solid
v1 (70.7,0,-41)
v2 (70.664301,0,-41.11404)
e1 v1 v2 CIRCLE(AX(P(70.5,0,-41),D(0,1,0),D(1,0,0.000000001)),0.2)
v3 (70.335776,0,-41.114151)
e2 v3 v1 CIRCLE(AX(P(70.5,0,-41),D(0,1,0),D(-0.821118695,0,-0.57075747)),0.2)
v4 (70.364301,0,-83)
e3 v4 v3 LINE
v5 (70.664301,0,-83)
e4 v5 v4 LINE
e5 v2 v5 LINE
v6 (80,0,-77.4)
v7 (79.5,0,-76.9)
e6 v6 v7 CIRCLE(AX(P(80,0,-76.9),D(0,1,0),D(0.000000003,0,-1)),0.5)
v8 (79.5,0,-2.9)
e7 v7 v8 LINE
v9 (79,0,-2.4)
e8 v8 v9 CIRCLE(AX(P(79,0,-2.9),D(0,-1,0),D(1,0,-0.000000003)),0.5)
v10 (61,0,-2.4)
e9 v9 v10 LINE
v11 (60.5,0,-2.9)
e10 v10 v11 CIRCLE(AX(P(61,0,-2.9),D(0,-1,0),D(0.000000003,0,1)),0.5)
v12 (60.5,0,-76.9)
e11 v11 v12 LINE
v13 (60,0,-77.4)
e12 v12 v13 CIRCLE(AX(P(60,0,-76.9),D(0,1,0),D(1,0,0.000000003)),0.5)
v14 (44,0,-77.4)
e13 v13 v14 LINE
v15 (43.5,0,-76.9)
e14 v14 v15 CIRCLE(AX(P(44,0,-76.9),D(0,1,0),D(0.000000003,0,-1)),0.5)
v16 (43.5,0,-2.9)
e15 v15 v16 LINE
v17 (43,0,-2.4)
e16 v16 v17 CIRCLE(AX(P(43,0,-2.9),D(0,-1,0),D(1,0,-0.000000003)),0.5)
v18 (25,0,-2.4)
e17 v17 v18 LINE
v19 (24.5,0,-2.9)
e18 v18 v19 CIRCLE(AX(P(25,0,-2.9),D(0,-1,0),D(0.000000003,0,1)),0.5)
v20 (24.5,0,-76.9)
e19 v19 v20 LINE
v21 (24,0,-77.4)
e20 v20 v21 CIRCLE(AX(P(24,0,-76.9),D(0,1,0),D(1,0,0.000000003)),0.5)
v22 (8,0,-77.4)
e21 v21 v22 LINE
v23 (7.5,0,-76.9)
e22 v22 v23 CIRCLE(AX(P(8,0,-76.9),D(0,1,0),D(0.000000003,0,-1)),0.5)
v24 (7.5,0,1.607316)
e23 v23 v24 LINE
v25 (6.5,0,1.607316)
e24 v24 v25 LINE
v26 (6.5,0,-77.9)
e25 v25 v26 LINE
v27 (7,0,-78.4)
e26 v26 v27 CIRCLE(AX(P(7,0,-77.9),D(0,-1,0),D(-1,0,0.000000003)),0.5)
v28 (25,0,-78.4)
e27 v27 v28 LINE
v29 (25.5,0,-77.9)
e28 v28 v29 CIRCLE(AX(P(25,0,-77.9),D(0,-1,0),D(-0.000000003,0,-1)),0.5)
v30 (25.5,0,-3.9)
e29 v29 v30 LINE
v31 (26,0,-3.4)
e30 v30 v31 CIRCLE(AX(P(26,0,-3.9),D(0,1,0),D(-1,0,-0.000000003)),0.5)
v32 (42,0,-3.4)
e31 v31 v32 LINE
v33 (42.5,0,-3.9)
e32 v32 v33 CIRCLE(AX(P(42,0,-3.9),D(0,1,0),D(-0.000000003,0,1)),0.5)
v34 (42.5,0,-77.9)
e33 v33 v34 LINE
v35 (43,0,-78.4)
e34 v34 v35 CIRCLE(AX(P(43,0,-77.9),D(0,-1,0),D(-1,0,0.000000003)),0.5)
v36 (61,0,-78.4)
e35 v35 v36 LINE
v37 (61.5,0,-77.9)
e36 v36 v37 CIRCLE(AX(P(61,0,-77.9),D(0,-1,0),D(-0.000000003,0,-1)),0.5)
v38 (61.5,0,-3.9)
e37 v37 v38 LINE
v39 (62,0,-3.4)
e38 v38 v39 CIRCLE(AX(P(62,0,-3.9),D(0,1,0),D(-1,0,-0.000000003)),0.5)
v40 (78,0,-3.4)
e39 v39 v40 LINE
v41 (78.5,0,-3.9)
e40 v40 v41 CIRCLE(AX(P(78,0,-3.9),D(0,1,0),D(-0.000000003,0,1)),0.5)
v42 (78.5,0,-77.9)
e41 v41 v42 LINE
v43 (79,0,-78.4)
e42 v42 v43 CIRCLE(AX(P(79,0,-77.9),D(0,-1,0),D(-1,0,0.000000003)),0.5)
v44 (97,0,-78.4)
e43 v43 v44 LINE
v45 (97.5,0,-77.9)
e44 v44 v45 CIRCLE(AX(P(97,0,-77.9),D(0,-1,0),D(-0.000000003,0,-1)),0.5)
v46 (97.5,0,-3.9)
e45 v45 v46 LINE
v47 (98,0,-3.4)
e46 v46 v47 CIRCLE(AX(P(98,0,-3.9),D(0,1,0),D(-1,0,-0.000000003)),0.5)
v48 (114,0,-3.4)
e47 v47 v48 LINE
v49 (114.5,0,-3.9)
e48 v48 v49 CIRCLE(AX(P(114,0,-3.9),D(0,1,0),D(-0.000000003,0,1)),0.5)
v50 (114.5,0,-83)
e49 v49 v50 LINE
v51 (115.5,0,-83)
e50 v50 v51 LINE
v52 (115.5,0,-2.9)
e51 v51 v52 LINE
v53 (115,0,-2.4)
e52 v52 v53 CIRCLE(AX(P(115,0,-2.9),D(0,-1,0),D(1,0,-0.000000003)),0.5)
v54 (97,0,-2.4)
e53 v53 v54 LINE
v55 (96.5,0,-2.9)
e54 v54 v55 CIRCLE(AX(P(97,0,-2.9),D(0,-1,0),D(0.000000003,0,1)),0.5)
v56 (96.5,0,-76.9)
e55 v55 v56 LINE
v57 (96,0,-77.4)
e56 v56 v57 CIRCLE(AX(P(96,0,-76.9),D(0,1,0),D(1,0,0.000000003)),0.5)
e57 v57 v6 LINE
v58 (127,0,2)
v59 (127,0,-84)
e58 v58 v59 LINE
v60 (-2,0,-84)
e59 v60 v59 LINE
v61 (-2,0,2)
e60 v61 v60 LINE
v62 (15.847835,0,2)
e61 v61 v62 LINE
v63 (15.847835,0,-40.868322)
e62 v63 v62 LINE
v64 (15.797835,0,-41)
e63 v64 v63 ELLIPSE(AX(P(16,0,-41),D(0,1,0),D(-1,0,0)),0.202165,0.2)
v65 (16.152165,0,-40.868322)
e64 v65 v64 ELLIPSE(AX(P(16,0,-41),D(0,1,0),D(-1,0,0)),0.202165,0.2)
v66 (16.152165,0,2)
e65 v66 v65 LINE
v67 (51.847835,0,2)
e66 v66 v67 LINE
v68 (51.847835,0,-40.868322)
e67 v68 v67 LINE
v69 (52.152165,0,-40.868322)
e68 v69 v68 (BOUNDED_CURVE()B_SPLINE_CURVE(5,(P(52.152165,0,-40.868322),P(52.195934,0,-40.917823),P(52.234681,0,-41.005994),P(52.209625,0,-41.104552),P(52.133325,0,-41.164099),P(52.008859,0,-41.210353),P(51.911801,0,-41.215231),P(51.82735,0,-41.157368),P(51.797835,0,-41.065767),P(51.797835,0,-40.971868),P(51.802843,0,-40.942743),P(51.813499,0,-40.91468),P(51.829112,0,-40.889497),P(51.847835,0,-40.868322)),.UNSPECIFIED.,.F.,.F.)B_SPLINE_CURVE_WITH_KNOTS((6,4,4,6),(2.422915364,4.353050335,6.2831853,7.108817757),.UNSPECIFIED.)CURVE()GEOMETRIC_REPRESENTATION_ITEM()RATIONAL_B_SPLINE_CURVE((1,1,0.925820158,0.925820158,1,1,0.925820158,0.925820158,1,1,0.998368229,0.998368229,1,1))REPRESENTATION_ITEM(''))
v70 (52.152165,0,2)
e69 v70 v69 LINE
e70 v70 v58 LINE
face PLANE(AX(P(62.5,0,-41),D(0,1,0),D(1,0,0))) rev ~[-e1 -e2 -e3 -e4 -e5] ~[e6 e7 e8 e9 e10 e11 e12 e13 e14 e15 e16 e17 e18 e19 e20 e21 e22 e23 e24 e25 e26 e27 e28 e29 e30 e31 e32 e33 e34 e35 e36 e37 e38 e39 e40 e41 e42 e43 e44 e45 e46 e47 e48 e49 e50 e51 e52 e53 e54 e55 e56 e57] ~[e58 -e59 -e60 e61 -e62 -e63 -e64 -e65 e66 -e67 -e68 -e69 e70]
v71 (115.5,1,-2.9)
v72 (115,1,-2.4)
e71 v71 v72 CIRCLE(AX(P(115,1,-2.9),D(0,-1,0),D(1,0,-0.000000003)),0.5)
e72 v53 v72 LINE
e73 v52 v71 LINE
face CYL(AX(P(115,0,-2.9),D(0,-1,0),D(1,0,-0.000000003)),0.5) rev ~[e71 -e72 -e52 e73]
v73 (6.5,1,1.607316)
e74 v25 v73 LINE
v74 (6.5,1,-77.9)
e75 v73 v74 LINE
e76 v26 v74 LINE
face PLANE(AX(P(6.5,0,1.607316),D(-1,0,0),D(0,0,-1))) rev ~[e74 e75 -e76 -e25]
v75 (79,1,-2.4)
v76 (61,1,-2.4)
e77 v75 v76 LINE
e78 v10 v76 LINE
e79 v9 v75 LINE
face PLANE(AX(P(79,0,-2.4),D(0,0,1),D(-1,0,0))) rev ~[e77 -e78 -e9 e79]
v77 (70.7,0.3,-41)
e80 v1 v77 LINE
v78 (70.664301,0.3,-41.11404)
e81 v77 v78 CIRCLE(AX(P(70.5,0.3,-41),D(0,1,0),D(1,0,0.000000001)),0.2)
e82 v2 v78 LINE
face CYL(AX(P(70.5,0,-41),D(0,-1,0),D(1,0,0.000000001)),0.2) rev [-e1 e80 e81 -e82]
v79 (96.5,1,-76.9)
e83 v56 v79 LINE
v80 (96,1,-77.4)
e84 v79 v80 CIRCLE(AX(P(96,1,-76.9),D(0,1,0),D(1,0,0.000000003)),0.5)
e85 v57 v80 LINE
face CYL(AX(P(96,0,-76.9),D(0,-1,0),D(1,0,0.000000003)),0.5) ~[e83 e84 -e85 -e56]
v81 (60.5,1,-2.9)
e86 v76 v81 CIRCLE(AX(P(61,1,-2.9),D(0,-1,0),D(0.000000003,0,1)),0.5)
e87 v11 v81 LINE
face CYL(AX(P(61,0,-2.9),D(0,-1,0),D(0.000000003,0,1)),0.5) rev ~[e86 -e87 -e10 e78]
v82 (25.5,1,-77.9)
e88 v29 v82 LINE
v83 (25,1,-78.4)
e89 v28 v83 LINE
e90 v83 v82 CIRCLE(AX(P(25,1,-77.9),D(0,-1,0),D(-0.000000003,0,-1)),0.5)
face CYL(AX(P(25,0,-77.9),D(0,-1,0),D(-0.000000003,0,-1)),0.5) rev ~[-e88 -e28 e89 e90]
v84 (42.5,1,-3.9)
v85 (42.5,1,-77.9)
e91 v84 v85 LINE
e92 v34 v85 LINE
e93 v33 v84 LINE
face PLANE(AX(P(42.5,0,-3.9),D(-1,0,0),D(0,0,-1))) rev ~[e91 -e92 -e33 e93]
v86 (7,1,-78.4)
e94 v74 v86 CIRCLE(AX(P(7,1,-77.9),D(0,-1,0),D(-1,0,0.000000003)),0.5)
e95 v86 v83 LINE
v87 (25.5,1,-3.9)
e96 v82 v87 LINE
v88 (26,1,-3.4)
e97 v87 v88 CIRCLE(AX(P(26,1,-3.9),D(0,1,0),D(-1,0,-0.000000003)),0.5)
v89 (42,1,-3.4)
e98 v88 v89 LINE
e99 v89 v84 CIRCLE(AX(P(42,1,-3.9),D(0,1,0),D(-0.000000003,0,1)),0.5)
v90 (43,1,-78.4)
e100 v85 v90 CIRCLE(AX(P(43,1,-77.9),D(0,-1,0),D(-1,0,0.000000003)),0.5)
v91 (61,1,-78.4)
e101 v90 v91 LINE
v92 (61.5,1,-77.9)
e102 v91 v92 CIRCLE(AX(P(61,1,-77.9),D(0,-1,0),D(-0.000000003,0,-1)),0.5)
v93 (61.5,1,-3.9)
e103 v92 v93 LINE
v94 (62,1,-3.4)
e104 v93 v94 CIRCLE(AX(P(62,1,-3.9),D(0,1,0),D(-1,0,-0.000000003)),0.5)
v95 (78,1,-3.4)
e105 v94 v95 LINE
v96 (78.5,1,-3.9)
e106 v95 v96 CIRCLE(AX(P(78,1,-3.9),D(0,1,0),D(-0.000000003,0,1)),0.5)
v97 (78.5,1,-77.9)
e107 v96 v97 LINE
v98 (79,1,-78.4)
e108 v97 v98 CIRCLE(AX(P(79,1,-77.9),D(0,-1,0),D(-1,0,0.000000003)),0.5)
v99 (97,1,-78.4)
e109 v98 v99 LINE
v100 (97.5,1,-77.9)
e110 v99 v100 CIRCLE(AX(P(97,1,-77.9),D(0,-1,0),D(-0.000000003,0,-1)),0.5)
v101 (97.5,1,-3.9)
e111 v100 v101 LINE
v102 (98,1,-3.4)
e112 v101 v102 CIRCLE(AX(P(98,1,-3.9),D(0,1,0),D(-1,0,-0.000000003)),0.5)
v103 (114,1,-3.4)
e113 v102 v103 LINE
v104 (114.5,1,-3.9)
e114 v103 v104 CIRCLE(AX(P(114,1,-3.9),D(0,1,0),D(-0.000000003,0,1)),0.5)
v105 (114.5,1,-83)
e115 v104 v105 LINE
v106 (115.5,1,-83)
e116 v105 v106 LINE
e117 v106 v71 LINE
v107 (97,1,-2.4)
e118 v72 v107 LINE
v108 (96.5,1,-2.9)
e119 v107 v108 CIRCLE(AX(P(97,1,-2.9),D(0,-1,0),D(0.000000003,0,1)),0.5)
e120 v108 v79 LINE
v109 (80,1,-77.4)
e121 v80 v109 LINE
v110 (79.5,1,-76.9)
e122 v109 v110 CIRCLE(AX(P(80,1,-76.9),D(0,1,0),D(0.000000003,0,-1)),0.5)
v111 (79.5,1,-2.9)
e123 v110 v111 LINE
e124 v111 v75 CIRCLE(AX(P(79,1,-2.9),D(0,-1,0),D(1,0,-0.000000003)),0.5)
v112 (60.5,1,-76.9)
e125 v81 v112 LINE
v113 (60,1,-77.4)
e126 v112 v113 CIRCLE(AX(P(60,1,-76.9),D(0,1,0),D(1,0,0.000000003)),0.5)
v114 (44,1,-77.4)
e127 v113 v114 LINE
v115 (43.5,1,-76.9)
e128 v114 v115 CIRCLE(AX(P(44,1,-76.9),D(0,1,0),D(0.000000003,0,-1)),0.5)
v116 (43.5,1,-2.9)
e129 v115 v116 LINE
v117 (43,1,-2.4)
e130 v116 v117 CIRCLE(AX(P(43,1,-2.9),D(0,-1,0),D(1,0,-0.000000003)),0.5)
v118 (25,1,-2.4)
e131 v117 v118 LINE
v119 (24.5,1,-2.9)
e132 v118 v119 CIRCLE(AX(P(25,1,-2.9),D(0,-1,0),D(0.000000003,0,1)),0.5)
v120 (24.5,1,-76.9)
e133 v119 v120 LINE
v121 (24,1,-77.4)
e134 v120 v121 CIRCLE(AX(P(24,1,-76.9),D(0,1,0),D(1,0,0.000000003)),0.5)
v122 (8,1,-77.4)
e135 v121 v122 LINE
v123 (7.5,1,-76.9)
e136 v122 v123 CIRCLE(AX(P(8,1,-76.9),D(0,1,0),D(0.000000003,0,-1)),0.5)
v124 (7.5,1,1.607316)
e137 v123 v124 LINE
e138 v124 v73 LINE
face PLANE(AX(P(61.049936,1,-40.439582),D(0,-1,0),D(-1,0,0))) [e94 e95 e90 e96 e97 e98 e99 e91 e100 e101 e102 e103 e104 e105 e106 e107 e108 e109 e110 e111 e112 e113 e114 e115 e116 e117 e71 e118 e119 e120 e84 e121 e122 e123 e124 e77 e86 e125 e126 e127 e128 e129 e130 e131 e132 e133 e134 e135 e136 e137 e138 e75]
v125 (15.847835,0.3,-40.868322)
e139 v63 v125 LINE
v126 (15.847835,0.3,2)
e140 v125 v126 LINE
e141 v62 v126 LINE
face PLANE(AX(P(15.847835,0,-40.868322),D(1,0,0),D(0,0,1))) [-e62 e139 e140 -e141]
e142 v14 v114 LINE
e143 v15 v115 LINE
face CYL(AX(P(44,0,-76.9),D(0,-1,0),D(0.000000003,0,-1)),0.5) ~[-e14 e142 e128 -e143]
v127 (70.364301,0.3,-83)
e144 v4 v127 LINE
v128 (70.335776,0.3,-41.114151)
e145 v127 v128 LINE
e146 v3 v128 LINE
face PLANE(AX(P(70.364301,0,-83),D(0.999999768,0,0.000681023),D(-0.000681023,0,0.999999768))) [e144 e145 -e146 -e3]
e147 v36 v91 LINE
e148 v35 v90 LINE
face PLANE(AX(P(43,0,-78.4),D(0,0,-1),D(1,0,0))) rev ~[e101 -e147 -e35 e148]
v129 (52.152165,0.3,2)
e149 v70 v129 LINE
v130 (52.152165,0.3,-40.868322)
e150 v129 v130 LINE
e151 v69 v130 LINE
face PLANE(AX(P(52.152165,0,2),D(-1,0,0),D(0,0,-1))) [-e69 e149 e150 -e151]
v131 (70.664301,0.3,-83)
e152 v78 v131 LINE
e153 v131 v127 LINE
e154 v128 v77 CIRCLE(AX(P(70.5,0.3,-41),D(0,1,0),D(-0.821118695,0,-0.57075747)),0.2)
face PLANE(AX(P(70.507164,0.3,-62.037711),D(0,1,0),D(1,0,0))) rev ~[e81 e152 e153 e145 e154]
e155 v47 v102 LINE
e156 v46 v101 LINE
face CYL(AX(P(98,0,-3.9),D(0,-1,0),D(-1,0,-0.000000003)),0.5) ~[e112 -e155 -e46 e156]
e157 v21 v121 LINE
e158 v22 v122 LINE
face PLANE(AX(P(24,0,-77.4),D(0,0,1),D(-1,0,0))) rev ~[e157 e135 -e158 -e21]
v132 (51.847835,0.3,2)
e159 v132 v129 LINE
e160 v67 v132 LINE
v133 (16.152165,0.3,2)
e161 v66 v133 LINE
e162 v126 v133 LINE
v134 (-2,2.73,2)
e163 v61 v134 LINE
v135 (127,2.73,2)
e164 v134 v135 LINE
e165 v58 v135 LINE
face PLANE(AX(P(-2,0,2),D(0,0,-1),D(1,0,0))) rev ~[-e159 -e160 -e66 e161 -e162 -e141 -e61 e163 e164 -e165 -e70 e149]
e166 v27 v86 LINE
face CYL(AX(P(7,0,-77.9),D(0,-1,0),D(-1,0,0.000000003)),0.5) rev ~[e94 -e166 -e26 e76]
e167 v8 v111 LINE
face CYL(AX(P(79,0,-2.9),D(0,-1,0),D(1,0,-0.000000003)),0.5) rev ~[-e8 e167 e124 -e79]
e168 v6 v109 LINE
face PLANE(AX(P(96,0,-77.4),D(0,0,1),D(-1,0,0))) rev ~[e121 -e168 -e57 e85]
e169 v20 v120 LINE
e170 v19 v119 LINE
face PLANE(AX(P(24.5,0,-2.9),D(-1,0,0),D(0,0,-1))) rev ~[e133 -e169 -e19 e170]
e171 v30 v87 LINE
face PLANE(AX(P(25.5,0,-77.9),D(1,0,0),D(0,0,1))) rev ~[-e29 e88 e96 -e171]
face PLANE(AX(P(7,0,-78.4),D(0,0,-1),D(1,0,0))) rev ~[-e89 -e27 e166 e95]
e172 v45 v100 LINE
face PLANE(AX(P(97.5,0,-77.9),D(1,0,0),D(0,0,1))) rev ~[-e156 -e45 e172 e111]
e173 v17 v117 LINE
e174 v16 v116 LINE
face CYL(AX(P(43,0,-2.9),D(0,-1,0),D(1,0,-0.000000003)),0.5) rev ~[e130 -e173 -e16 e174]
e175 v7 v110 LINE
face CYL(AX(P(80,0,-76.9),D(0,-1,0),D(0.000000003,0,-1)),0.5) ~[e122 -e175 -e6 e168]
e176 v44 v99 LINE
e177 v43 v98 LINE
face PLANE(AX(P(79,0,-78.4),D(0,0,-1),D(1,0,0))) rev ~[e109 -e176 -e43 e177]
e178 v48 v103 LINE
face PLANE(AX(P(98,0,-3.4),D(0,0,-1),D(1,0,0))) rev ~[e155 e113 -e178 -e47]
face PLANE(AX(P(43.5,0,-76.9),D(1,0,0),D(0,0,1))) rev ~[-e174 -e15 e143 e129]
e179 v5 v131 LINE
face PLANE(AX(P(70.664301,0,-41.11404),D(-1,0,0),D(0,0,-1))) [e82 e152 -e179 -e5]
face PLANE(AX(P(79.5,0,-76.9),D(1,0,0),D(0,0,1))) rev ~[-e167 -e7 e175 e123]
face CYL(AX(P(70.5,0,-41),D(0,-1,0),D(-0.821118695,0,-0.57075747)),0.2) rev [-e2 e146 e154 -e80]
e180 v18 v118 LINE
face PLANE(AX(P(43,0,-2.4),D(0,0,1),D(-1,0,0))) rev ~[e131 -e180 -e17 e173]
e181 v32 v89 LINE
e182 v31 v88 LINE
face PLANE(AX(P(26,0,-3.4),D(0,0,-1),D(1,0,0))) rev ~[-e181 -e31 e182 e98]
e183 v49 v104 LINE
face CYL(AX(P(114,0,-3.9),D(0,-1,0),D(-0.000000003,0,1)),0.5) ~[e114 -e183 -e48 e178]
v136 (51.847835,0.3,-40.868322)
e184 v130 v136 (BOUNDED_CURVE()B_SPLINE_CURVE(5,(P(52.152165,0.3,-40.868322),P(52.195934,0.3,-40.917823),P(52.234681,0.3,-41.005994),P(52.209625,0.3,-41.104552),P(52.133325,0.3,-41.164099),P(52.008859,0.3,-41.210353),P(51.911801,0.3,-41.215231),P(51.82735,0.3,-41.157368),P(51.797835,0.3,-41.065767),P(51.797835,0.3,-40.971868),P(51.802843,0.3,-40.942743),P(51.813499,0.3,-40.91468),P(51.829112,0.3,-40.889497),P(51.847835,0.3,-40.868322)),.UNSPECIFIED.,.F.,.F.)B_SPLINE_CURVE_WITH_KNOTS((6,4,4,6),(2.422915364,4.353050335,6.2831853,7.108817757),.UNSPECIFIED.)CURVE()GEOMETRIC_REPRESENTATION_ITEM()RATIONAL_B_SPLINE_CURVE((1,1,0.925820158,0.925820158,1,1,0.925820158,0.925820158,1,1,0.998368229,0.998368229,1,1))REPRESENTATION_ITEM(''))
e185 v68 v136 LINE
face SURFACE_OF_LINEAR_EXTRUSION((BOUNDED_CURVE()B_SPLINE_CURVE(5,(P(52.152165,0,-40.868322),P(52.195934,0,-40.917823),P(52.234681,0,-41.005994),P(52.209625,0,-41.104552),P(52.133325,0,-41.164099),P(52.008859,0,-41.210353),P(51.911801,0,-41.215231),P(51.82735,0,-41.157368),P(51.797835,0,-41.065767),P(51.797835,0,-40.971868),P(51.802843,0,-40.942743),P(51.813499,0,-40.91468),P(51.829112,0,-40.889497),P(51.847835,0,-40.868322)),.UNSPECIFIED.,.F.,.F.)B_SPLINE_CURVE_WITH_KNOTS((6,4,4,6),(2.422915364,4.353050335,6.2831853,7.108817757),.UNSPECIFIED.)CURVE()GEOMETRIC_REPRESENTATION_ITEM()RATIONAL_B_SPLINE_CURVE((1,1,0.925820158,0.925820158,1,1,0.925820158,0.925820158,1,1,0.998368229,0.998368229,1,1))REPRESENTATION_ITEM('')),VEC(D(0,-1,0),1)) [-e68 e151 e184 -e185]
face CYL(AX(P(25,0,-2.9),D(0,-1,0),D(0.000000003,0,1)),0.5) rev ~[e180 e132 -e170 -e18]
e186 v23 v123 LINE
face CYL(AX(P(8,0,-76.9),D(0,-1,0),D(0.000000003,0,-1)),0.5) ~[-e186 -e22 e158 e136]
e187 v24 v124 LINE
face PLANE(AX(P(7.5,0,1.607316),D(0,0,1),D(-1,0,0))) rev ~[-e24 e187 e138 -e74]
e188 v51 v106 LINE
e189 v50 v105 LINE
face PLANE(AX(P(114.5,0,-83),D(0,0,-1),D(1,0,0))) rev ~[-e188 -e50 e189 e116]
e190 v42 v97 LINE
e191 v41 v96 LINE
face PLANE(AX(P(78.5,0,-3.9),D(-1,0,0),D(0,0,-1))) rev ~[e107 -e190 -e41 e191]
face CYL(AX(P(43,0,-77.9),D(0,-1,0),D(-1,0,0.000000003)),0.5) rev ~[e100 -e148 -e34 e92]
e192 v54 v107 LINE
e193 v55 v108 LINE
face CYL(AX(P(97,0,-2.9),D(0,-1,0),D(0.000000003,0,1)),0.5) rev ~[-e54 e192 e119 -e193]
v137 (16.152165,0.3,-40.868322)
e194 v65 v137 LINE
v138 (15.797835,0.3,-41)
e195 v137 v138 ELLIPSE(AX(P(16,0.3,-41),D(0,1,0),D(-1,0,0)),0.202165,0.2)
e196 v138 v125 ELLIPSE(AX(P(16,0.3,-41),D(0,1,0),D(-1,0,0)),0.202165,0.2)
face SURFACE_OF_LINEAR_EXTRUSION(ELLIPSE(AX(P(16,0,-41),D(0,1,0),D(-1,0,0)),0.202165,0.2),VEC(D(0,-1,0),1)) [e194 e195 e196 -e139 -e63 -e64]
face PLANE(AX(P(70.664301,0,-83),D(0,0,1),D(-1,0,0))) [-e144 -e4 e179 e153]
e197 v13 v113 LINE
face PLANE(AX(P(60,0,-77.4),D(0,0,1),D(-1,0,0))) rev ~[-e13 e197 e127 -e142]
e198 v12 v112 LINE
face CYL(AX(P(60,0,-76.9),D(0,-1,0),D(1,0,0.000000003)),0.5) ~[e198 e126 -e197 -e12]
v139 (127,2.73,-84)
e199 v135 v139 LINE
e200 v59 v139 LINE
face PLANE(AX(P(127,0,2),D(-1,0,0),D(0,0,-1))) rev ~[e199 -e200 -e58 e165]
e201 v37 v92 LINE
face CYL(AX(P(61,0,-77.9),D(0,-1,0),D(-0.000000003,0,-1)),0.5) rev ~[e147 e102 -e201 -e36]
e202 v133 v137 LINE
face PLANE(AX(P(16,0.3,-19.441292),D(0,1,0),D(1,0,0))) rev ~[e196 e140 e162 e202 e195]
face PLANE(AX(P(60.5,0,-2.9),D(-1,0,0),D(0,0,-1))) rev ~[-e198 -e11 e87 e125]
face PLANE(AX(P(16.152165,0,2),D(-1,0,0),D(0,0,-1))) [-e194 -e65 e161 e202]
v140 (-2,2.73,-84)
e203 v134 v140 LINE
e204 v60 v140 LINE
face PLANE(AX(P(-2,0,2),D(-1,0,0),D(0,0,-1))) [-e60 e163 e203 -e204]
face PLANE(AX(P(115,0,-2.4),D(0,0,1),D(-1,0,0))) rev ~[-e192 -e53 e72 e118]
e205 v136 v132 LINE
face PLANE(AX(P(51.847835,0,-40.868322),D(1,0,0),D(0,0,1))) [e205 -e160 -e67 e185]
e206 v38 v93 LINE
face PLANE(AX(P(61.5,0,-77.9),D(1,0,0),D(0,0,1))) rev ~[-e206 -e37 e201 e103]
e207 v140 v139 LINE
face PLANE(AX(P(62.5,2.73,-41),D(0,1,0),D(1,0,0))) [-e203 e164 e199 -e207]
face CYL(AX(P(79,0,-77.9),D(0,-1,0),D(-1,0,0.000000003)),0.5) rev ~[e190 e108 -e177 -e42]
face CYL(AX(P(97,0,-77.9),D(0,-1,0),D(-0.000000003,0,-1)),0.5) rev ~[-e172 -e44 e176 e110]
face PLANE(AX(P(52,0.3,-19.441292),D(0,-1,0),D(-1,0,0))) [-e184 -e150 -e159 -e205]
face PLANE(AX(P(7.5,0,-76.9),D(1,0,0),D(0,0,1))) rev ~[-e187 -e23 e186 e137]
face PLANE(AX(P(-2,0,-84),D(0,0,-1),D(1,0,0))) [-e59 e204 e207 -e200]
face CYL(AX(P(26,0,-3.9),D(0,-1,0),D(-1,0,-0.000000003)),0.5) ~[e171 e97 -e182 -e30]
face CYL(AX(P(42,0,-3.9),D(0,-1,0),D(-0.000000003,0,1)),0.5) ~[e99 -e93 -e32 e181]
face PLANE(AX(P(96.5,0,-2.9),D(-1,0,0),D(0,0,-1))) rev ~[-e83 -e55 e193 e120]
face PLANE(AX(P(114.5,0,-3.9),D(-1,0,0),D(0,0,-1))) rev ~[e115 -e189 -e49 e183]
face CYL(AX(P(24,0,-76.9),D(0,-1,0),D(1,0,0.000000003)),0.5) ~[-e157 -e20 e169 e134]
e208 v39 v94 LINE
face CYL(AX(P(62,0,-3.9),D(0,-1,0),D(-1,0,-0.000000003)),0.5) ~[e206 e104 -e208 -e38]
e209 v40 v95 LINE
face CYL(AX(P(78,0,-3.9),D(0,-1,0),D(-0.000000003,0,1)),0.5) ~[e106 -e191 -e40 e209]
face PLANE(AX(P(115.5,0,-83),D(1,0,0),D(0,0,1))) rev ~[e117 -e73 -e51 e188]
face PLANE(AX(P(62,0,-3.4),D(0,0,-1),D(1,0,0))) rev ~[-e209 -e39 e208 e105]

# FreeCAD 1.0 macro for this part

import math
import FreeCAD as App
import Part
import Sketcher

V = App.Vector
Q = App.Units.Quantity


def add_polygon(sketch, points):
    """Adds a closed chain of lines whose ends are joined by coincident constraints."""
    first, n = sketch.GeometryCount, len(points)
    for a, b in zip(points, points[1:] + points[:1]):
        sketch.addGeometry(Part.LineSegment(App.Vector(*a, 0), App.Vector(*b, 0)), False)
    for i in range(n):
        sketch.addConstraint(Sketcher.Constraint("Coincident", first + i, 2, first + (i + 1) % n, 1))

doc = App.newDocument("Part")
body = doc.addObject("PartDesign::Body", "Body")

# Sketch on XZ plane
sketch1 = body.newObject("Sketcher::SketchObject", "Sketch")
sketch1.AttachmentSupport = (doc.getObject("XZ_Plane"), [""])
sketch1.MapMode = "FlatFace"
add_polygon(sketch1, [(-2, -84), (-2, 2), (127, 2), (127, -84)])  # lines 0-3
sketch1.addConstraint([
    Sketcher.Constraint("Vertical", 0),
    Sketcher.Constraint("Horizontal", 1),
    Sketcher.Constraint("Vertical", 2),
    Sketcher.Constraint("Horizontal", 3),
    Sketcher.Constraint("DistanceX", 1, 1, 1, 2, Q("129 mm")),
    Sketcher.Constraint("DistanceY", 0, 1, 0, 2, Q("86 mm")),
    Sketcher.Constraint("DistanceX", 0, 2, -1, 1, Q("2 mm")),
    Sketcher.Constraint("DistanceY", -1, 1, 0, 2, Q("2 mm")),
])
pad1 = body.newObject("PartDesign::Pad", "Pad")
pad1.Profile = sketch1
pad1.Length = 2.73
pad1.Reversed = True

# Sketch on XZ plane
sketch2 = body.newObject("Sketcher::SketchObject", "Sketch001")
sketch2.AttachmentSupport = (doc.getObject("XZ_Plane"), [""])
sketch2.MapMode = "FlatFace"
sketch2.addGeometry([
    Part.LineSegment(V(6.5, -77.9, 0), V(6.5, 1.61, 0)),  # 0
    Part.LineSegment(V(6.5, 1.61, 0), V(7.5, 1.61, 0)),  # 1
    Part.LineSegment(V(7.5, 1.61, 0), V(7.5, -76.9, 0)),  # 2
    Part.ArcOfCircle(Part.Circle(V(8, -76.9, 0), V(0, 0, 1), 0.5), math.radians(180), math.radians(270)),  # 3
    Part.LineSegment(V(8, -77.4, 0), V(24, -77.4, 0)),  # 4
    Part.ArcOfCircle(Part.Circle(V(24, -76.9, 0), V(0, 0, 1), 0.5), math.radians(-90), math.radians(0)),  # 5
    Part.LineSegment(V(24.5, -76.9, 0), V(24.5, -2.9, 0)),  # 6
    Part.ArcOfCircle(Part.Circle(V(25, -2.9, 0), V(0, 0, 1), 0.5), math.radians(90), math.radians(180)),  # 7
    Part.LineSegment(V(25, -2.4, 0), V(43, -2.4, 0)),  # 8
    Part.ArcOfCircle(Part.Circle(V(43, -2.9, 0), V(0, 0, 1), 0.5), math.radians(0), math.radians(90)),  # 9
    Part.LineSegment(V(43.5, -2.9, 0), V(43.5, -76.9, 0)),  # 10
    Part.ArcOfCircle(Part.Circle(V(44, -76.9, 0), V(0, 0, 1), 0.5), math.radians(180), math.radians(270)),  # 11
    Part.LineSegment(V(44, -77.4, 0), V(60, -77.4, 0)),  # 12
    Part.ArcOfCircle(Part.Circle(V(60, -76.9, 0), V(0, 0, 1), 0.5), math.radians(-90), math.radians(0)),  # 13
    Part.LineSegment(V(60.5, -76.9, 0), V(60.5, -2.9, 0)),  # 14
    Part.ArcOfCircle(Part.Circle(V(61, -2.9, 0), V(0, 0, 1), 0.5), math.radians(90), math.radians(180)),  # 15
    Part.LineSegment(V(61, -2.4, 0), V(79, -2.4, 0)),  # 16
    Part.ArcOfCircle(Part.Circle(V(79, -2.9, 0), V(0, 0, 1), 0.5), math.radians(0), math.radians(90)),  # 17
    Part.LineSegment(V(79.5, -2.9, 0), V(79.5, -76.9, 0)),  # 18
    Part.ArcOfCircle(Part.Circle(V(80, -76.9, 0), V(0, 0, 1), 0.5), math.radians(180), math.radians(270)),  # 19
    Part.LineSegment(V(80, -77.4, 0), V(96, -77.4, 0)),  # 20
    Part.ArcOfCircle(Part.Circle(V(96, -76.9, 0), V(0, 0, 1), 0.5), math.radians(-90), math.radians(0)),  # 21
    Part.LineSegment(V(96.5, -76.9, 0), V(96.5, -2.9, 0)),  # 22
    Part.ArcOfCircle(Part.Circle(V(97, -2.9, 0), V(0, 0, 1), 0.5), math.radians(90), math.radians(180)),  # 23
    Part.LineSegment(V(97, -2.4, 0), V(115, -2.4, 0)),  # 24
    Part.ArcOfCircle(Part.Circle(V(115, -2.9, 0), V(0, 0, 1), 0.5), math.radians(0), math.radians(90)),  # 25
    Part.LineSegment(V(115.5, -2.9, 0), V(115.5, -83, 0)),  # 26
    Part.LineSegment(V(115.5, -83, 0), V(114.5, -83, 0)),  # 27
    Part.LineSegment(V(114.5, -83, 0), V(114.5, -3.9, 0)),  # 28
    Part.ArcOfCircle(Part.Circle(V(114, -3.9, 0), V(0, 0, 1), 0.5), math.radians(0), math.radians(90)),  # 29
    Part.LineSegment(V(114, -3.4, 0), V(98, -3.4, 0)),  # 30
    Part.ArcOfCircle(Part.Circle(V(98, -3.9, 0), V(0, 0, 1), 0.5), math.radians(90), math.radians(180)),  # 31
    Part.LineSegment(V(97.5, -3.9, 0), V(97.5, -77.9, 0)),  # 32
    Part.ArcOfCircle(Part.Circle(V(97, -77.9, 0), V(0, 0, 1), 0.5), math.radians(-90), math.radians(0)),  # 33
    Part.LineSegment(V(97, -78.4, 0), V(79, -78.4, 0)),  # 34
    Part.ArcOfCircle(Part.Circle(V(79, -77.9, 0), V(0, 0, 1), 0.5), math.radians(180), math.radians(270)),  # 35
    Part.LineSegment(V(78.5, -77.9, 0), V(78.5, -3.9, 0)),  # 36
    Part.ArcOfCircle(Part.Circle(V(78, -3.9, 0), V(0, 0, 1), 0.5), math.radians(0), math.radians(90)),  # 37
    Part.LineSegment(V(78, -3.4, 0), V(62, -3.4, 0)),  # 38
    Part.ArcOfCircle(Part.Circle(V(62, -3.9, 0), V(0, 0, 1), 0.5), math.radians(90), math.radians(180)),  # 39
    Part.LineSegment(V(61.5, -3.9, 0), V(61.5, -77.9, 0)),  # 40
    Part.ArcOfCircle(Part.Circle(V(61, -77.9, 0), V(0, 0, 1), 0.5), math.radians(-90), math.radians(0)),  # 41
    Part.LineSegment(V(61, -78.4, 0), V(43, -78.4, 0)),  # 42
    Part.ArcOfCircle(Part.Circle(V(43, -77.9, 0), V(0, 0, 1), 0.5), math.radians(180), math.radians(270)),  # 43
    Part.LineSegment(V(42.5, -77.9, 0), V(42.5, -3.9, 0)),  # 44
    Part.ArcOfCircle(Part.Circle(V(42, -3.9, 0), V(0, 0, 1), 0.5), math.radians(0), math.radians(90)),  # 45
    Part.LineSegment(V(42, -3.4, 0), V(26, -3.4, 0)),  # 46
    Part.ArcOfCircle(Part.Circle(V(26, -3.9, 0), V(0, 0, 1), 0.5), math.radians(90), math.radians(180)),  # 47
    Part.LineSegment(V(25.5, -3.9, 0), V(25.5, -77.9, 0)),  # 48
    Part.ArcOfCircle(Part.Circle(V(25, -77.9, 0), V(0, 0, 1), 0.5), math.radians(-90), math.radians(0)),  # 49
    Part.LineSegment(V(25, -78.4, 0), V(7, -78.4, 0)),  # 50
    Part.ArcOfCircle(Part.Circle(V(7, -77.9, 0), V(0, 0, 1), 0.5), math.radians(180), math.radians(270)),  # 51
], False)
sketch2.addConstraint([
    Sketcher.Constraint("Coincident", 0, 2, 1, 1),
    Sketcher.Constraint("Coincident", 1, 2, 2, 1),
    Sketcher.Constraint("Tangent", 2, 2, 3, 1),
    Sketcher.Constraint("Tangent", 3, 2, 4, 1),
    Sketcher.Constraint("Tangent", 4, 2, 5, 1),
    Sketcher.Constraint("Tangent", 5, 2, 6, 1),
    Sketcher.Constraint("Tangent", 6, 2, 7, 2),
    Sketcher.Constraint("Tangent", 7, 1, 8, 1),
    Sketcher.Constraint("Tangent", 8, 2, 9, 2),
    Sketcher.Constraint("Tangent", 9, 1, 10, 1),
    Sketcher.Constraint("Tangent", 10, 2, 11, 1),
    Sketcher.Constraint("Tangent", 11, 2, 12, 1),
    Sketcher.Constraint("Tangent", 12, 2, 13, 1),
    Sketcher.Constraint("Tangent", 13, 2, 14, 1),
    Sketcher.Constraint("Tangent", 14, 2, 15, 2),
    Sketcher.Constraint("Tangent", 15, 1, 16, 1),
    Sketcher.Constraint("Tangent", 16, 2, 17, 2),
    Sketcher.Constraint("Tangent", 17, 1, 18, 1),
    Sketcher.Constraint("Tangent", 18, 2, 19, 1),
    Sketcher.Constraint("Tangent", 19, 2, 20, 1),
    Sketcher.Constraint("Tangent", 20, 2, 21, 1),
    Sketcher.Constraint("Tangent", 21, 2, 22, 1),
    Sketcher.Constraint("Tangent", 22, 2, 23, 2),
    Sketcher.Constraint("Tangent", 23, 1, 24, 1),
    Sketcher.Constraint("Tangent", 24, 2, 25, 2),
    Sketcher.Constraint("Tangent", 25, 1, 26, 1),
    Sketcher.Constraint("Coincident", 26, 2, 27, 1),
    Sketcher.Constraint("Coincident", 27, 2, 28, 1),
    Sketcher.Constraint("Tangent", 28, 2, 29, 1),
    Sketcher.Constraint("Tangent", 29, 2, 30, 1),
    Sketcher.Constraint("Tangent", 30, 2, 31, 1),
    Sketcher.Constraint("Tangent", 31, 2, 32, 1),
    Sketcher.Constraint("Tangent", 32, 2, 33, 2),
    Sketcher.Constraint("Tangent", 33, 1, 34, 1),
    Sketcher.Constraint("Tangent", 34, 2, 35, 2),
    Sketcher.Constraint("Tangent", 35, 1, 36, 1),
    Sketcher.Constraint("Tangent", 36, 2, 37, 1),
    Sketcher.Constraint("Tangent", 37, 2, 38, 1),
    Sketcher.Constraint("Tangent", 38, 2, 39, 1),
    Sketcher.Constraint("Tangent", 39, 2, 40, 1),
    Sketcher.Constraint("Tangent", 40, 2, 41, 2),
    Sketcher.Constraint("Tangent", 41, 1, 42, 1),
    Sketcher.Constraint("Tangent", 42, 2, 43, 2),
    Sketcher.Constraint("Tangent", 43, 1, 44, 1),
    Sketcher.Constraint("Tangent", 44, 2, 45, 1),
    Sketcher.Constraint("Tangent", 45, 2, 46, 1),
    Sketcher.Constraint("Tangent", 46, 2, 47, 1),
    Sketcher.Constraint("Tangent", 47, 2, 48, 1),
    Sketcher.Constraint("Tangent", 48, 2, 49, 2),
    Sketcher.Constraint("Tangent", 49, 1, 50, 1),
    Sketcher.Constraint("Tangent", 50, 2, 51, 2),
    Sketcher.Constraint("Tangent", 51, 1, 0, 1),
    Sketcher.Constraint("Vertical", 0),
    Sketcher.Constraint("Horizontal", 1),
    Sketcher.Constraint("Vertical", 2),
    Sketcher.Constraint("Horizontal", 4),
    Sketcher.Constraint("Vertical", 6),
    Sketcher.Constraint("Horizontal", 8),
    Sketcher.Constraint("Vertical", 10),
    Sketcher.Constraint("Horizontal", 12),
    Sketcher.Constraint("Vertical", 14),
    Sketcher.Constraint("Horizontal", 16),
    Sketcher.Constraint("Vertical", 18),
    Sketcher.Constraint("Horizontal", 20),
    Sketcher.Constraint("Vertical", 22),
    Sketcher.Constraint("Horizontal", 24),
    Sketcher.Constraint("Vertical", 26),
    Sketcher.Constraint("Horizontal", 27),
    Sketcher.Constraint("Vertical", 28),
    Sketcher.Constraint("Horizontal", 30),
    Sketcher.Constraint("Vertical", 32),
    Sketcher.Constraint("Horizontal", 34),
    Sketcher.Constraint("Vertical", 36),
    Sketcher.Constraint("Horizontal", 38),
    Sketcher.Constraint("Vertical", 40),
    Sketcher.Constraint("Horizontal", 42),
    Sketcher.Constraint("Vertical", 44),
    Sketcher.Constraint("Horizontal", 46),
    Sketcher.Constraint("Vertical", 48),
    Sketcher.Constraint("Horizontal", 50),
    Sketcher.Constraint("Equal", 3, 5),
    Sketcher.Constraint("Equal", 5, 7),
    Sketcher.Constraint("Equal", 7, 9),
    Sketcher.Constraint("Equal", 9, 11),
    Sketcher.Constraint("Equal", 11, 13),
    Sketcher.Constraint("Equal", 13, 15),
    Sketcher.Constraint("Equal", 15, 17),
    Sketcher.Constraint("Equal", 17, 19),
    Sketcher.Constraint("Equal", 19, 21),
    Sketcher.Constraint("Equal", 21, 23),
    Sketcher.Constraint("Equal", 23, 25),
    Sketcher.Constraint("Equal", 25, 29),
    Sketcher.Constraint("Equal", 29, 31),
    Sketcher.Constraint("Equal", 31, 33),
    Sketcher.Constraint("Equal", 33, 35),
    Sketcher.Constraint("Equal", 35, 37),
    Sketcher.Constraint("Equal", 37, 39),
    Sketcher.Constraint("Equal", 39, 41),
    Sketcher.Constraint("Equal", 41, 43),
    Sketcher.Constraint("Equal", 43, 45),
    Sketcher.Constraint("Equal", 45, 47),
    Sketcher.Constraint("Equal", 47, 49),
    Sketcher.Constraint("Equal", 49, 51),
    Sketcher.Constraint("Horizontal", 5, 3, 11, 3),
    Sketcher.Constraint("Horizontal", 9, 3, 15, 3),
    Sketcher.Constraint("Horizontal", 13, 3, 19, 3),
    Sketcher.Constraint("Horizontal", 17, 3, 23, 3),
    Sketcher.Constraint("Horizontal", 31, 3, 37, 3),
    Sketcher.Constraint("Horizontal", 35, 3, 41, 3),
    Sketcher.Constraint("Horizontal", 39, 3, 45, 3),
    Sketcher.Constraint("Horizontal", 43, 3, 49, 3),
    Sketcher.Constraint("Vertical", 23, 3, 33, 3),
    Sketcher.Constraint("Vertical", 17, 3, 35, 3),
    Sketcher.Constraint("Vertical", 15, 3, 41, 3),
    Sketcher.Constraint("Vertical", 9, 3, 43, 3),
    Sketcher.Constraint("Vertical", 7, 3, 49, 3),
    Sketcher.Constraint("Equal", 4, 12),
    Sketcher.Constraint("Equal", 8, 16),
    Sketcher.Constraint("Equal", 12, 20),
    Sketcher.Constraint("Equal", 16, 24),
    Sketcher.Constraint("Equal", 1, 27),
    Sketcher.Constraint("Equal", 20, 30),
    Sketcher.Constraint("Equal", 24, 34),
    Sketcher.Constraint("Equal", 22, 32),
    Sketcher.Constraint("Radius", 3, Q("0.5 mm")),
    Sketcher.Constraint("DistanceX", 4, 1, 4, 2, Q("16 mm")),
    Sketcher.Constraint("DistanceY", 6, 1, 6, 2, Q("74 mm")),
    Sketcher.Constraint("DistanceY", 26, 2, 26, 1, Q("80.1 mm")),
    Sketcher.Constraint("DistanceY", 28, 1, 28, 2, Q("79.1 mm")),
    Sketcher.Constraint("DistanceX", -1, 1, 3, 3, Q("8 mm")),
    Sketcher.Constraint("DistanceY", 26, 2, -1, 1, Q("83 mm")),
    Sketcher.Constraint("DistanceY", 0, 1, 0, 2, Q("79.507316 mm")),
])
pocket1 = body.newObject("PartDesign::Pocket", "Pocket")
pocket1.Profile = sketch2
pocket1.Length = 1

# Sketch on XZ plane
sketch3 = body.newObject("Sketcher::SketchObject", "Sketch002")
sketch3.AttachmentSupport = (doc.getObject("XZ_Plane"), [""])
sketch3.MapMode = "FlatFace"
sketch3.addGeometry(Part.Ellipse(V(15.797835, -41, 0), V(16, -41.2, 0), V(16, -41, 0)), False)
sketch3.addConstraint(Sketcher.Constraint("Block", 0))
pocket2 = body.newObject("PartDesign::Pocket", "Pocket001")
pocket2.Profile = sketch3
pocket2.Length = 0.3

# Sketch on XZ plane
sketch4 = body.newObject("Sketcher::SketchObject", "Sketch003")
sketch4.AttachmentSupport = (doc.getObject("XZ_Plane"), [""])
sketch4.MapMode = "FlatFace"
sketch4.addGeometry([
    Part.LineSegment(V(15.847835, 2, 0), V(16.152165, 2, 0)),  # 0
    Part.LineSegment(V(16.152165, 2, 0), V(16.152165, -40.868322, 0)),  # 1
    Part.BSplineCurve([V(16.152165, -40.868322, 0), V(16.195934, -40.917823, 0), V(16.234681, -41.005994, 0), V(16.209625, -41.104552, 0), V(16.133325, -41.164099, 0), V(16.008859, -41.210353, 0), V(15.911801, -41.215231, 0), V(15.82735, -41.157368, 0), V(15.797835, -41.065767, 0), V(15.797835, -40.971868, 0), V(15.802843, -40.942743, 0), V(15.813499, -40.91468, 0), V(15.829112, -40.889497, 0), V(15.847835, -40.868322, 0)], [6, 4, 4, 6], [2.422915364, 4.353050335, 6.2831853, 7.108817757], False, 5, [1, 1, 0.925820158, 0.925820158, 1, 1, 0.925820158, 0.925820158, 1, 1, 0.998368229, 0.998368229, 1, 1], False),  # 2
    Part.LineSegment(V(15.847835, -40.868322, 0), V(15.847835, 2, 0)),  # 3
    Part.LineSegment(V(52.152165, 2, 0), V(52.152165, -40.868322, 0)),  # 4
    Part.BSplineCurve([V(52.152165, -40.868322, 0), V(52.195934, -40.917823, 0), V(52.234681, -41.005994, 0), V(52.209625, -41.104552, 0), V(52.133325, -41.164099, 0), V(52.008859, -41.210353, 0), V(51.911801, -41.215231, 0), V(51.82735, -41.157368, 0), V(51.797835, -41.065767, 0), V(51.797835, -40.971868, 0), V(51.802843, -40.942743, 0), V(51.813499, -40.91468, 0), V(51.829112, -40.889497, 0), V(51.847835, -40.868322, 0)], [6, 4, 4, 6], [2.422915364, 4.353050335, 6.2831853, 7.108817757], False, 5, [1, 1, 0.925820158, 0.925820158, 1, 1, 0.925820158, 0.925820158, 1, 1, 0.998368229, 0.998368229, 1, 1], False),  # 5
    Part.LineSegment(V(51.847835, -40.868322, 0), V(51.847835, 2, 0)),  # 6
    Part.LineSegment(V(51.847835, 2, 0), V(52.152165, 2, 0)),  # 7
    Part.LineSegment(V(70.364301, -83, 0), V(70.335776, -41.114151, 0)),  # 8
    Part.ArcOfCircle(Part.Circle(V(70.5, -41, 0), V(0, 0, 1), 0.2), math.radians(0), math.radians(214.803063)),  # 9
    Part.ArcOfCircle(Part.Circle(V(70.5, -41, 0), V(0, 0, 1), 0.2), math.radians(-34.764024), math.radians(0)),  # 10
    Part.LineSegment(V(70.664301, -41.11404, 0), V(70.664301, -83, 0)),  # 11
    Part.LineSegment(V(70.664301, -83, 0), V(70.364301, -83, 0)),  # 12
], False)
sketch4.addConstraint([
    Sketcher.Constraint("Block", 2),
    Sketcher.Constraint("Block", 5),
    Sketcher.Constraint("Coincident", 0, 2, 1, 1),
    Sketcher.Constraint("Coincident", 1, 2, 2, 1),
    Sketcher.Constraint("Coincident", 2, 2, 3, 1),
    Sketcher.Constraint("Coincident", 3, 2, 0, 1),
    Sketcher.Constraint("Coincident", 4, 2, 5, 1),
    Sketcher.Constraint("Coincident", 5, 2, 6, 1),
    Sketcher.Constraint("Coincident", 6, 2, 7, 1),
    Sketcher.Constraint("Coincident", 7, 2, 4, 1),
    Sketcher.Constraint("Coincident", 8, 2, 9, 2),
    Sketcher.Constraint("Tangent", 9, 1, 10, 2),
    Sketcher.Constraint("Coincident", 10, 1, 11, 1),
    Sketcher.Constraint("Coincident", 11, 2, 12, 1),
    Sketcher.Constraint("Coincident", 12, 2, 8, 1),
    Sketcher.Constraint("Horizontal", 0),
    Sketcher.Constraint("Vertical", 1),
    Sketcher.Constraint("Vertical", 3),
    Sketcher.Constraint("Vertical", 4),
    Sketcher.Constraint("Vertical", 6),
    Sketcher.Constraint("Horizontal", 7),
    Sketcher.Constraint("Vertical", 11),
    Sketcher.Constraint("Horizontal", 12),
    Sketcher.Constraint("Equal", 9, 10),
    Sketcher.Constraint("Horizontal", 3, 2, 6, 2),
    Sketcher.Constraint("Horizontal", 10, 3, 9, 1),
    Sketcher.Constraint("Radius", 9, Q("0.2 mm")),
    Sketcher.Constraint("DistanceX", 12, 2, 12, 1, Q("0.3 mm")),
    Sketcher.Constraint("DistanceY", 9, 3, -1, 1, Q("41 mm")),
    Sketcher.Constraint("DistanceY", -1, 1, 0, 2, Q("2 mm")),
    Sketcher.Constraint("DistanceY", 11, 2, -1, 1, Q("83 mm")),
    Sketcher.Constraint("DistanceX", -1, 1, 9, 3, Q("70.5 mm")),
    Sketcher.Constraint("DistanceY", 11, 2, 11, 1, Q("41.88596 mm")),
    Sketcher.Constraint("Distance", 8, Q("41.885858 mm")),
])
pocket3 = body.newObject("PartDesign::Pocket", "Pocket002")
pocket3.Profile = sketch4
pocket3.Length = 0.3

doc.recompute()
